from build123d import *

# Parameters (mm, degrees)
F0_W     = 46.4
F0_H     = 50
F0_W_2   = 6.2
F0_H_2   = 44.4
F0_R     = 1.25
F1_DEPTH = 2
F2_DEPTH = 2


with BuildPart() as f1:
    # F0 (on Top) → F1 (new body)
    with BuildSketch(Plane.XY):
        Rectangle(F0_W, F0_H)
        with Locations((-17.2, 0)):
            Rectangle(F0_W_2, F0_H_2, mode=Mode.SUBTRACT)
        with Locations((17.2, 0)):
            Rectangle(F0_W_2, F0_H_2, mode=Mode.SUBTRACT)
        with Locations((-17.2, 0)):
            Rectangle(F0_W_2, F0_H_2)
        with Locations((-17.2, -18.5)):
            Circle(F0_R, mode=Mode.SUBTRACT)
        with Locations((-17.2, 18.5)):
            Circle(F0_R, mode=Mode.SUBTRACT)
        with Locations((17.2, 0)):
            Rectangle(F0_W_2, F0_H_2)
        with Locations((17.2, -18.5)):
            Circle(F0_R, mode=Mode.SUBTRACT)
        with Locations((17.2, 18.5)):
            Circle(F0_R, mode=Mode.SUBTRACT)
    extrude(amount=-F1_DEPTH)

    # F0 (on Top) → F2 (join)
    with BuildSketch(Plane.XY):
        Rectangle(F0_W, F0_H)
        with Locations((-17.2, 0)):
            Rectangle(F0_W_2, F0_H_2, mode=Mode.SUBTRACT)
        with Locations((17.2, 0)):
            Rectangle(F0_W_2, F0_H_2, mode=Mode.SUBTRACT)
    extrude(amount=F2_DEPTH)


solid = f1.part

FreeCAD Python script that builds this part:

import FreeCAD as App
import Part
import Sketcher
from FreeCAD import Vector

doc = App.newDocument("Part")
body = doc.addObject("PartDesign::Body", "Body")

sketch1 = body.newObject("Sketcher::SketchObject", "Sketch")
sketch1.AttachmentSupport = (doc.getObject("XY_Plane"), [""])
sketch1.MapMode = "FlatFace"
sketch1.addGeometry(Part.LineSegment(Vector(-23.2, 25, 0), Vector(-23.2, -25, 0)), False)
sketch1.addGeometry(Part.LineSegment(Vector(-23.2, -25, 0), Vector(23.2, -25, 0)), False)
sketch1.addGeometry(Part.LineSegment(Vector(23.2, -25, 0), Vector(23.2, 25, 0)), False)
sketch1.addGeometry(Part.LineSegment(Vector(23.2, 25, 0), Vector(-23.2, 25, 0)), False)
sketch1.addGeometry(Part.Circle(Vector(-17.2, -18.5, 0), Vector(0, 0, 1), 1.25), False)
sketch1.addGeometry(Part.Circle(Vector(17.2, -18.5, 0), Vector(0, 0, 1), 1.25), False)
sketch1.addGeometry(Part.Circle(Vector(-17.2, 18.5, 0), Vector(0, 0, 1), 1.25), False)
sketch1.addGeometry(Part.Circle(Vector(17.2, 18.5, 0), Vector(0, 0, 1), 1.25), False)
sketch1.addConstraint(Sketcher.Constraint("Coincident", 0, 2, 1, 1))
sketch1.addConstraint(Sketcher.Constraint("Coincident", 1, 2, 2, 1))
sketch1.addConstraint(Sketcher.Constraint("Coincident", 2, 2, 3, 1))
sketch1.addConstraint(Sketcher.Constraint("Coincident", 3, 2, 0, 1))
sketch1.addConstraint(Sketcher.Constraint("Vertical", 0))
sketch1.addConstraint(Sketcher.Constraint("Horizontal", 1))
sketch1.addConstraint(Sketcher.Constraint("Vertical", 2))
sketch1.addConstraint(Sketcher.Constraint("Horizontal", 3))
sketch1.addConstraint(Sketcher.Constraint("Equal", 4, 5))
sketch1.addConstraint(Sketcher.Constraint("Equal", 5, 6))
sketch1.addConstraint(Sketcher.Constraint("Equal", 6, 7))
sketch1.addConstraint(Sketcher.Constraint("Symmetric", 5, 3, 6, 3, -1, 1))
sketch1.addConstraint(Sketcher.Constraint("Symmetric", 4, 3, 7, 3, -1, 1))
sketch1.addConstraint(Sketcher.Constraint("Symmetric", 0, 2, 2, 2, -1, 1))
sketch1.addConstraint(Sketcher.Constraint("Symmetric", 4, 3, 5, 3, -2))
sketch1.addConstraint(Sketcher.Constraint("Diameter", 4, 2.5))
sketch1.addConstraint(Sketcher.Constraint("DistanceY", 0, 2, 0, 1, 50.0))
sketch1.addConstraint(Sketcher.Constraint("DistanceX", 1, 1, 1, 2, 46.4))
sketch1.addConstraint(Sketcher.Constraint("DistanceY", 4, 3, 6, 3, 37.0))
sketch1.addConstraint(Sketcher.Constraint("DistanceX", 0, 2, 4, 3, 6.0))
pad1 = body.newObject("PartDesign::Pad", "Pad")
pad1.Profile = sketch1
pad1.Length = 2
pad1.Reversed = True

sketch2 = body.newObject("Sketcher::SketchObject", "Sketch001")
sketch2.AttachmentSupport = (doc.getObject("XY_Plane"), [""])
sketch2.MapMode = "FlatFace"
sketch2.addGeometry(Part.LineSegment(Vector(-23.2, 25, 0), Vector(-23.2, -25, 0)), False)
sketch2.addGeometry(Part.LineSegment(Vector(-23.2, -25, 0), Vector(23.2, -25, 0)), False)
sketch2.addGeometry(Part.LineSegment(Vector(23.2, -25, 0), Vector(23.2, 25, 0)), False)
sketch2.addGeometry(Part.LineSegment(Vector(23.2, 25, 0), Vector(-23.2, 25, 0)), False)
sketch2.addGeometry(Part.LineSegment(Vector(-14.1, -22.2, 0), Vector(-20.3, -22.2, 0)), False)
sketch2.addGeometry(Part.LineSegment(Vector(-20.3, -22.2, 0), Vector(-20.3, 22.2, 0)), False)
sketch2.addGeometry(Part.LineSegment(Vector(-20.3, 22.2, 0), Vector(-14.1, 22.2, 0)), False)
sketch2.addGeometry(Part.LineSegment(Vector(-14.1, 22.2, 0), Vector(-14.1, -22.2, 0)), False)
sketch2.addGeometry(Part.LineSegment(Vector(20.3, -22.2, 0), Vector(14.1, -22.2, 0)), False)
sketch2.addGeometry(Part.LineSegment(Vector(14.1, -22.2, 0), Vector(14.1, 22.2, 0)), False)
sketch2.addGeometry(Part.LineSegment(Vector(14.1, 22.2, 0), Vector(20.3, 22.2, 0)), False)
sketch2.addGeometry(Part.LineSegment(Vector(20.3, 22.2, 0), Vector(20.3, -22.2, 0)), False)
sketch2.addConstraint(Sketcher.Constraint("Coincident", 0, 2, 1, 1))
sketch2.addConstraint(Sketcher.Constraint("Coincident", 1, 2, 2, 1))
sketch2.addConstraint(Sketcher.Constraint("Coincident", 2, 2, 3, 1))
sketch2.addConstraint(Sketcher.Constraint("Coincident", 3, 2, 0, 1))
sketch2.addConstraint(Sketcher.Constraint("Coincident", 4, 2, 5, 1))
sketch2.addConstraint(Sketcher.Constraint("Coincident", 5, 2, 6, 1))
sketch2.addConstraint(Sketcher.Constraint("Coincident", 6, 2, 7, 1))
sketch2.addConstraint(Sketcher.Constraint("Coincident", 7, 2, 4, 1))
sketch2.addConstraint(Sketcher.Constraint("Coincident", 8, 2, 9, 1))
sketch2.addConstraint(Sketcher.Constraint("Coincident", 9, 2, 10, 1))
sketch2.addConstraint(Sketcher.Constraint("Coincident", 10, 2, 11, 1))
sketch2.addConstraint(Sketcher.Constraint("Coincident", 11, 2, 8, 1))
sketch2.addConstraint(Sketcher.Constraint("Vertical", 0))
sketch2.addConstraint(Sketcher.Constraint("Horizontal", 1))
sketch2.addConstraint(Sketcher.Constraint("Vertical", 2))
sketch2.addConstraint(Sketcher.Constraint("Horizontal", 3))
sketch2.addConstraint(Sketcher.Constraint("Horizontal", 4))
sketch2.addConstraint(Sketcher.Constraint("Vertical", 5))
sketch2.addConstraint(Sketcher.Constraint("Horizontal", 6))
sketch2.addConstraint(Sketcher.Constraint("Vertical", 7))
sketch2.addConstraint(Sketcher.Constraint("Horizontal", 8))
sketch2.addConstraint(Sketcher.Constraint("Vertical", 9))
sketch2.addConstraint(Sketcher.Constraint("Horizontal", 10))
sketch2.addConstraint(Sketcher.Constraint("Vertical", 11))
sketch2.addConstraint(Sketcher.Constraint("Symmetric", 0, 2, 2, 2, -1, 1))
sketch2.addConstraint(Sketcher.Constraint("Symmetric", 6, 2, 8, 2, -1, 1))
sketch2.addConstraint(Sketcher.Constraint("Symmetric", 4, 2, 10, 2, -1, 1))
sketch2.addConstraint(Sketcher.Constraint("Horizontal", 7, 2, 8, 2))
sketch2.addConstraint(Sketcher.Constraint("DistanceY", 0, 2, 0, 1, 50.0))
sketch2.addConstraint(Sketcher.Constraint("DistanceX", 1, 1, 1, 2, 46.4))
sketch2.addConstraint(Sketcher.Constraint("DistanceX", 4, 2, 4, 1, 6.2))
sketch2.addConstraint(Sketcher.Constraint("DistanceY", 5, 1, 5, 2, 44.4))
sketch2.addConstraint(Sketcher.Constraint("DistanceX", 4, 2, -1, 1, 20.3))
pad2 = body.newObject("PartDesign::Pad", "Pad001")
pad2.Profile = sketch2
pad2.Length = 2

doc.recompute()
